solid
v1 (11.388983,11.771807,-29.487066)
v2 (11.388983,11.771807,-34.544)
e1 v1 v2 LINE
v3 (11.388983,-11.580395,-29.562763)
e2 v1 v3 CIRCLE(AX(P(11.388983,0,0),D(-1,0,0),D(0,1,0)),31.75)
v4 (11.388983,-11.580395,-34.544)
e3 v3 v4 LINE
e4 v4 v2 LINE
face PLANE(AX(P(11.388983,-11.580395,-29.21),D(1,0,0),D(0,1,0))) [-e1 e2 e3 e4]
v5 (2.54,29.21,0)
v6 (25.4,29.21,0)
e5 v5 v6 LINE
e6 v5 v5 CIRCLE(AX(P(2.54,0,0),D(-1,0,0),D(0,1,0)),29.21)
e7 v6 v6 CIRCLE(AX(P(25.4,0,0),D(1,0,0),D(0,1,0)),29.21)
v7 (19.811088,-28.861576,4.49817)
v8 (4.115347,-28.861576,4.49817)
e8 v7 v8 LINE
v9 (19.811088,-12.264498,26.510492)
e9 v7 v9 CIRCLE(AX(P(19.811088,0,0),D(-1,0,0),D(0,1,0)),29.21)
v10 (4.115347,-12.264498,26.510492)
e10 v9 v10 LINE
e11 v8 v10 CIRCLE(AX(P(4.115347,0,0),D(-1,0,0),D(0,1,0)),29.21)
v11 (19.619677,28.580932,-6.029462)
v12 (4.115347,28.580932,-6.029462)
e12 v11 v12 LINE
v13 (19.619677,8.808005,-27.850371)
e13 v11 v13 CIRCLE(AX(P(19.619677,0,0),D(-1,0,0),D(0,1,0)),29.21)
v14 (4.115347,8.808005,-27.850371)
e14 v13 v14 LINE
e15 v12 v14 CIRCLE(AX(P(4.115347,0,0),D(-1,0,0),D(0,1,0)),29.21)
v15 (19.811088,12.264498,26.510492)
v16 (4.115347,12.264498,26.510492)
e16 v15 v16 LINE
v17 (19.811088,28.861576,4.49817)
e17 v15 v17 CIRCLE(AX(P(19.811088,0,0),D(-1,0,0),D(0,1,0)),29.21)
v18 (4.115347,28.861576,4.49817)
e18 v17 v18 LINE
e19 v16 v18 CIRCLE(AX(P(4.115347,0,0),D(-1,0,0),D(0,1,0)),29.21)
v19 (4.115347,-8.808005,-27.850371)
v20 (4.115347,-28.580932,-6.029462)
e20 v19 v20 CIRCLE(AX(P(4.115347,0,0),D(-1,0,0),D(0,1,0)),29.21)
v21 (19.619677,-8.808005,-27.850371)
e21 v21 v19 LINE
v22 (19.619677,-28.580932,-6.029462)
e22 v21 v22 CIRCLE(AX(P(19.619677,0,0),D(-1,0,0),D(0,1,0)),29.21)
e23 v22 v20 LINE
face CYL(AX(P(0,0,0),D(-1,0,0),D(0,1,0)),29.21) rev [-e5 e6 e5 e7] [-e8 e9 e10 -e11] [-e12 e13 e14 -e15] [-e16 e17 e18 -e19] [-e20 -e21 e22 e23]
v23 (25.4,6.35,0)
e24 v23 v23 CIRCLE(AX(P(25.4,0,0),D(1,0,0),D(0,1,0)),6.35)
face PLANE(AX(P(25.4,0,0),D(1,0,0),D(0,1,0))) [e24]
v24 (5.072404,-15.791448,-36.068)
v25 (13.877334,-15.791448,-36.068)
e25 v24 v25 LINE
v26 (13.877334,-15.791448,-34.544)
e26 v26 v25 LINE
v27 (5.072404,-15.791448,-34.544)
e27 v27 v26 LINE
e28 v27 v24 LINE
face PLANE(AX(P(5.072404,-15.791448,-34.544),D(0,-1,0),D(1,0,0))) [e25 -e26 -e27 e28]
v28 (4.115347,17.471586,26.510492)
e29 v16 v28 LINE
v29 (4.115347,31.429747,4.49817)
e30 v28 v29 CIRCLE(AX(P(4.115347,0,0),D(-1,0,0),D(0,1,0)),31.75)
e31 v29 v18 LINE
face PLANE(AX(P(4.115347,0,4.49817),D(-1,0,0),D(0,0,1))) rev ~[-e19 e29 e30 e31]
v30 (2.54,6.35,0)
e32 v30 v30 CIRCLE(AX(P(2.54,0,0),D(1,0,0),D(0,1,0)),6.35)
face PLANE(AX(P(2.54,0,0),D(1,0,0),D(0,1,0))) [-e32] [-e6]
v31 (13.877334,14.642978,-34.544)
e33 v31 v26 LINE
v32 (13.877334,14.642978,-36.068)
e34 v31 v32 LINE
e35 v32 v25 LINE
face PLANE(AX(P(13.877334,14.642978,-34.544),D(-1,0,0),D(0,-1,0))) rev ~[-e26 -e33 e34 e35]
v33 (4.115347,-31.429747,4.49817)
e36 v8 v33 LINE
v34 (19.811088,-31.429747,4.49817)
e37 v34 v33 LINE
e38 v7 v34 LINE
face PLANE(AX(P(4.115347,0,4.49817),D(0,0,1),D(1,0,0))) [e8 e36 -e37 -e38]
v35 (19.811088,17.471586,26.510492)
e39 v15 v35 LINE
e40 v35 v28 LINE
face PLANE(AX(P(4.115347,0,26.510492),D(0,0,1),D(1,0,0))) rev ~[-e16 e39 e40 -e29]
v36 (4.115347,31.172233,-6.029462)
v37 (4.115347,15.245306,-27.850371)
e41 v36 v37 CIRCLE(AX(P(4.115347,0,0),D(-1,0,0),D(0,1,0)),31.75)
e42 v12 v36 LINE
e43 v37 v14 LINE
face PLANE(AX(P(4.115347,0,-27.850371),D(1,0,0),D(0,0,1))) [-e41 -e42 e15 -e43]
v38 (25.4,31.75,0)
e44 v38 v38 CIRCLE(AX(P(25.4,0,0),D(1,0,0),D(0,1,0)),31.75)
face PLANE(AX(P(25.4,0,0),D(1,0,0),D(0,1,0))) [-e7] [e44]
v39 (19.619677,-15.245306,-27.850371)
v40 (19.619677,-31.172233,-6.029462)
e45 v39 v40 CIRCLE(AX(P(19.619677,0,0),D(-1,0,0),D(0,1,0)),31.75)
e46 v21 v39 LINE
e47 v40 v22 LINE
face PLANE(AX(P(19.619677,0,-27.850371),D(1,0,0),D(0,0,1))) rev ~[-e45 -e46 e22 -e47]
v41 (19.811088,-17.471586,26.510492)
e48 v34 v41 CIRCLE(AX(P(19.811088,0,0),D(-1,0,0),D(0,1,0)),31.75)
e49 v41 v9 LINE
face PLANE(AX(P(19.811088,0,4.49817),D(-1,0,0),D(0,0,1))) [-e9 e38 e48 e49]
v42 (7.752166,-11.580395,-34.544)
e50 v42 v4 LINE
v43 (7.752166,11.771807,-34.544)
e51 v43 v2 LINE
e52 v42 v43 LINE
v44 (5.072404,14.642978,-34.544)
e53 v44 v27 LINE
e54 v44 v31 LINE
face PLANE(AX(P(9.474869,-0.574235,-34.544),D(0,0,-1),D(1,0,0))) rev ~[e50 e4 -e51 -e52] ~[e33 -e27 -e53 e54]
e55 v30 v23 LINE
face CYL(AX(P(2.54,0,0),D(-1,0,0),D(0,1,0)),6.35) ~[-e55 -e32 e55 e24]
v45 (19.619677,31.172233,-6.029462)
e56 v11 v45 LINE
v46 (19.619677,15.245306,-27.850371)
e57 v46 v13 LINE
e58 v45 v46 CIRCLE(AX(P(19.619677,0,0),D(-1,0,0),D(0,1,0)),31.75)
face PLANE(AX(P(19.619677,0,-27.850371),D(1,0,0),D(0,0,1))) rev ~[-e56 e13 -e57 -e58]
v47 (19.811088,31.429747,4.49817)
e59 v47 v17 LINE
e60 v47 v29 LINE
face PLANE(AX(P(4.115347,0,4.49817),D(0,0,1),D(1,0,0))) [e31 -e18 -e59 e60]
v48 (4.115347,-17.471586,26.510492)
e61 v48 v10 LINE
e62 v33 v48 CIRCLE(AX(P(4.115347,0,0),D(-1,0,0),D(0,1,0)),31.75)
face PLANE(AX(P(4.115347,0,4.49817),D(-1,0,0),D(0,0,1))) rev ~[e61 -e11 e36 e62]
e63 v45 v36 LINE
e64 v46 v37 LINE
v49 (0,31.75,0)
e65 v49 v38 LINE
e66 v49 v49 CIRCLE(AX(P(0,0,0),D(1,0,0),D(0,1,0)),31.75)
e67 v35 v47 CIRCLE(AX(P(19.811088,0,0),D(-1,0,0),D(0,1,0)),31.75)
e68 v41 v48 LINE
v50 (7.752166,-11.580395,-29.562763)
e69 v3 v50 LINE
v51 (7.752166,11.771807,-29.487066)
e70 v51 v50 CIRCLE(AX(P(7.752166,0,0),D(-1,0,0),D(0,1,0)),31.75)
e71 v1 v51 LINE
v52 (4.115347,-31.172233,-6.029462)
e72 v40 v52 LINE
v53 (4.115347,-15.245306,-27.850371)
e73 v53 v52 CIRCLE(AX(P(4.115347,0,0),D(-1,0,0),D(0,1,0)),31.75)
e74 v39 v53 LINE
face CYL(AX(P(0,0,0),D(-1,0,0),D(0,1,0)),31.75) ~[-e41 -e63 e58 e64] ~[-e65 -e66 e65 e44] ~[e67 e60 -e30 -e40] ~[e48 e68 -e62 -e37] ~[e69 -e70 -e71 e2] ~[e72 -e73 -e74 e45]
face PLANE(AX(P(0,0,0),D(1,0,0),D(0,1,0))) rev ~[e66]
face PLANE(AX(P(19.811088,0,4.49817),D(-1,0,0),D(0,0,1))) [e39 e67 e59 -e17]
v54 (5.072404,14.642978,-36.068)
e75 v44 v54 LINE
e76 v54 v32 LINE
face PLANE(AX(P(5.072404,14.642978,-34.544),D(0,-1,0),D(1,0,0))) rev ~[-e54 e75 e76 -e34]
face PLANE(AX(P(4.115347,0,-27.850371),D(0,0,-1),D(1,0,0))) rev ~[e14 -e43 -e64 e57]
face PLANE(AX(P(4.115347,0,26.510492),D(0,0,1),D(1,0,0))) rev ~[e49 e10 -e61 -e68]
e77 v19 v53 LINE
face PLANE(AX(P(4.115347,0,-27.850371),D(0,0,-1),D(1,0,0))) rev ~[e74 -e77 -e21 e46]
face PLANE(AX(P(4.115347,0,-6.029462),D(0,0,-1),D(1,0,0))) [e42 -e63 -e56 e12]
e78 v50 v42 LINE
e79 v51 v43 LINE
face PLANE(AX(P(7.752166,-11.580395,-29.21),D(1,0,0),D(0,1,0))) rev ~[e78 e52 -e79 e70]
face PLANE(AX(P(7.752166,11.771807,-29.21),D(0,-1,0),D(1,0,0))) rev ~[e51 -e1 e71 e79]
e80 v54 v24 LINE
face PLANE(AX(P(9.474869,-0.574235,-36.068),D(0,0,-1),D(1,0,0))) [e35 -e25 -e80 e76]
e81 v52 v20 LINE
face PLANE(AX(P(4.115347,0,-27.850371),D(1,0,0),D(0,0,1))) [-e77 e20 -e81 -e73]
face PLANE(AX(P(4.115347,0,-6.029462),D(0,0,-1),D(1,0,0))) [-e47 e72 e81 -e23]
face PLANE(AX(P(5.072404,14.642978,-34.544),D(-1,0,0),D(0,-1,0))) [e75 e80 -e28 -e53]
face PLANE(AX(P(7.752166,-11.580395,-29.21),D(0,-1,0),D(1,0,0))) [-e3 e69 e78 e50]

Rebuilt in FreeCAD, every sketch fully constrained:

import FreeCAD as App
import Part
import Sketcher
Q = App.Units.Quantity


def faces_at(feature, points):
    """Names of the faces that lie closest to the given points."""
    faces = feature.Shape.Faces
    near = lambda p: min(range(len(faces)), key=lambda i: faces[i].distToShape(Part.Vertex(*p))[0])
    return sorted({f"Face{near(p) + 1}" for p in points})

doc = App.newDocument("Part")
params = doc.addObject("Spreadsheet::Sheet", "Params")
for row, (alias, value) in enumerate([
    ("sketch1_diameter", "2.5 in"),
    ("pad1_length", "1 in"),
    ("thickness_wall", "0.1 in"),
    ("pocket1_length", "4.58 in"),
    ("pad2_length", "0.21 in"),
    ("pad3_length", "0.06 in"),
    ("sketch5_diameter", "0.5 in"),
    ("pad4_length", "0.9 in"),
], start=1):
    params.set(f"A{row}", alias)
    params.set(f"B{row}", "=" + value)
    params.setAlias(f"B{row}", alias)

body = doc.addObject("PartDesign::Body", "Body")

# Sketch on YZ plane
sketch1 = doc.addObject("Sketcher::SketchObject", "Sketch")
body.addObject(sketch1)
sketch1.AttachmentSupport = (doc.YZ_Plane, [""])
sketch1.MapMode = "FlatFace"
sketch1.addGeometry(Part.Circle(App.Vector(0, 0, 0), App.Vector(0, 0, 1), 32), False)
sketch1.addConstraint([
    Sketcher.Constraint("Coincident", 0, 3, -1, 1),
    Sketcher.Constraint("Diameter", 0, Q("2.5 in")),
])
sketch1.setExpression("Constraints[1]", "Params.sketch1_diameter")
pad1 = doc.addObject("PartDesign::Pad", "Pad")
body.addObject(pad1)
pad1.Profile = sketch1
pad1.setExpression("Length", "Params.pad1_length")
doc.recompute()

thickness = doc.addObject("PartDesign::Thickness", "Thickness")
body.addObject(thickness)
thickness.Base = (pad1, faces_at(pad1, [(25.4, 0, 0)]))
thickness.setExpression("Value", "Params.thickness_wall")
thickness.Reversed = True
thickness.Join = "Arc"

# Sketch on XZ plane
sketch2 = doc.addObject("Sketcher::SketchObject", "Sketch001")
body.addObject(sketch2)
sketch2.AttachmentSupport = (doc.XZ_Plane, [""])
sketch2.MapMode = "FlatFace"
sketch2.addGeometry([
    Part.LineSegment(App.Vector(4, 27, 0), App.Vector(4, 4, 0)),  # 0
    Part.LineSegment(App.Vector(4, 4, 0), App.Vector(20, 4, 0)),  # 1
    Part.LineSegment(App.Vector(20, 4, 0), App.Vector(20, 27, 0)),  # 2
    Part.LineSegment(App.Vector(20, 27, 0), App.Vector(4, 27, 0)),  # 3
    Part.LineSegment(App.Vector(4, -6, 0), App.Vector(4, -28, 0)),  # 4
    Part.LineSegment(App.Vector(4, -28, 0), App.Vector(20, -28, 0)),  # 5
    Part.LineSegment(App.Vector(20, -28, 0), App.Vector(20, -6, 0)),  # 6
    Part.LineSegment(App.Vector(20, -6, 0), App.Vector(4, -6, 0)),  # 7
], False)
sketch2.addConstraint([
    Sketcher.Constraint("Coincident", 0, 2, 1, 1),
    Sketcher.Constraint("Coincident", 1, 2, 2, 1),
    Sketcher.Constraint("Coincident", 2, 2, 3, 1),
    Sketcher.Constraint("Coincident", 3, 2, 0, 1),
    Sketcher.Constraint("Coincident", 4, 2, 5, 1),
    Sketcher.Constraint("Coincident", 5, 2, 6, 1),
    Sketcher.Constraint("Coincident", 6, 2, 7, 1),
    Sketcher.Constraint("Coincident", 7, 2, 4, 1),
    Sketcher.Constraint("Vertical", 0),
    Sketcher.Constraint("Horizontal", 1),
    Sketcher.Constraint("Vertical", 2),
    Sketcher.Constraint("Horizontal", 3),
    Sketcher.Constraint("Vertical", 4),
    Sketcher.Constraint("Horizontal", 5),
    Sketcher.Constraint("Vertical", 6),
    Sketcher.Constraint("Horizontal", 7),
    Sketcher.Constraint("Vertical", 3, 2, 4, 2),
    Sketcher.Constraint("DistanceX", 1, 1, 1, 2, 15.695741),
    Sketcher.Constraint("DistanceX", 5, 1, 5, 2, 15.50433),
    Sketcher.Constraint("DistanceY", 4, 2, 4, 1, 21.820909),
    Sketcher.Constraint("DistanceY", 0, 2, 0, 1, 22.012322),
    Sketcher.Constraint("DistanceY", -1, 1, 0, 2, 4.49817),
    Sketcher.Constraint("DistanceX", -1, 1, 1, 2, 19.811088),
    Sketcher.Constraint("DistanceY", 4, 2, -1, 1, 27.850371),
])
pocket1 = doc.addObject("PartDesign::Pocket", "Pocket")
body.addObject(pocket1)
pocket1.Profile = sketch2
pocket1.setExpression("Length", "Params.pocket1_length")
pocket1.Midplane = True

# Sketch on XY plane
sketch3 = doc.addObject("Sketcher::SketchObject", "Sketch002")
body.addObject(sketch3)
sketch3.AttachmentSupport = (doc.XY_Plane, [""])
sketch3.MapMode = "FlatFace"
sketch3.AttachmentOffset = App.Placement(App.Vector(0, 0, -1.15 * 25.4), App.Rotation())
sketch3.addGeometry([
    Part.LineSegment(App.Vector(7.8, 11.8, 0), App.Vector(7.8, -11.6, 0)),
    Part.LineSegment(App.Vector(7.8, -11.6, 0), App.Vector(11.4, -11.6, 0)),
    Part.LineSegment(App.Vector(11.4, -11.6, 0), App.Vector(11.4, 11.8, 0)),
    Part.LineSegment(App.Vector(11.4, 11.8, 0), App.Vector(7.8, 11.8, 0)),
], False)
sketch3.addConstraint([
    Sketcher.Constraint("Coincident", 0, 2, 1, 1),
    Sketcher.Constraint("Coincident", 1, 2, 2, 1),
    Sketcher.Constraint("Coincident", 2, 2, 3, 1),
    Sketcher.Constraint("Coincident", 3, 2, 0, 1),
    Sketcher.Constraint("Vertical", 0),
    Sketcher.Constraint("Horizontal", 1),
    Sketcher.Constraint("Vertical", 2),
    Sketcher.Constraint("Horizontal", 3),
    Sketcher.Constraint("DistanceY", 0, 2, 0, 1, 23.352201),
    Sketcher.Constraint("DistanceX", 1, 1, 1, 2, 3.636817),
    Sketcher.Constraint("DistanceX", -1, 1, 0, 2, 7.752166),
    Sketcher.Constraint("DistanceY", 0, 2, -1, 1, 11.580395),
])
pad2 = doc.addObject("PartDesign::Pad", "Pad001")
body.addObject(pad2)
pad2.Profile = sketch3
pad2.setExpression("Length", "Params.pad2_length")
pad2.Reversed = True

# Sketch on XY plane
sketch4 = doc.addObject("Sketcher::SketchObject", "Sketch003")
body.addObject(sketch4)
sketch4.AttachmentSupport = (doc.XY_Plane, [""])
sketch4.MapMode = "FlatFace"
sketch4.AttachmentOffset = App.Placement(App.Vector(0, 0, -1.36 * 25.4), App.Rotation())
sketch4.addGeometry([
    Part.LineSegment(App.Vector(5, -16, 0), App.Vector(5, 15, 0)),
    Part.LineSegment(App.Vector(5, 15, 0), App.Vector(14, 15, 0)),
    Part.LineSegment(App.Vector(14, 15, 0), App.Vector(14, -16, 0)),
    Part.LineSegment(App.Vector(14, -16, 0), App.Vector(5, -16, 0)),
], False)
sketch4.addConstraint([
    Sketcher.Constraint("Coincident", 0, 2, 1, 1),
    Sketcher.Constraint("Coincident", 1, 2, 2, 1),
    Sketcher.Constraint("Coincident", 2, 2, 3, 1),
    Sketcher.Constraint("Coincident", 3, 2, 0, 1),
    Sketcher.Constraint("Vertical", 0),
    Sketcher.Constraint("Horizontal", 1),
    Sketcher.Constraint("Vertical", 2),
    Sketcher.Constraint("Horizontal", 3),
    Sketcher.Constraint("DistanceX", 1, 1, 1, 2, 8.80493),
    Sketcher.Constraint("DistanceY", 0, 1, 0, 2, 30.434426),
    Sketcher.Constraint("DistanceY", -1, 1, 0, 2, 14.642978),
    Sketcher.Constraint("DistanceX", -1, 1, 0, 2, 5.072404),
])
pad3 = doc.addObject("PartDesign::Pad", "Pad002")
body.addObject(pad3)
pad3.Profile = sketch4
pad3.setExpression("Length", "Params.pad3_length")
pad3.Reversed = True

# Sketch on YZ plane
sketch5 = doc.addObject("Sketcher::SketchObject", "Sketch004")
body.addObject(sketch5)
sketch5.AttachmentSupport = (doc.YZ_Plane, [""])
sketch5.MapMode = "FlatFace"
sketch5.AttachmentOffset = App.Placement(App.Vector(0, 0, 0.1 * 25.4), App.Rotation())
sketch5.addGeometry(Part.Circle(App.Vector(0, 0, 0), App.Vector(0, 0, 1), 6), False)
sketch5.addConstraint([
    Sketcher.Constraint("Coincident", 0, 3, -1, 1),
    Sketcher.Constraint("Diameter", 0, Q("0.5 in")),
])
sketch5.setExpression("Constraints[1]", "Params.sketch5_diameter")
pad4 = doc.addObject("PartDesign::Pad", "Pad003")
body.addObject(pad4)
pad4.Profile = sketch5
pad4.setExpression("Length", "Params.pad4_length")

doc.recompute()
